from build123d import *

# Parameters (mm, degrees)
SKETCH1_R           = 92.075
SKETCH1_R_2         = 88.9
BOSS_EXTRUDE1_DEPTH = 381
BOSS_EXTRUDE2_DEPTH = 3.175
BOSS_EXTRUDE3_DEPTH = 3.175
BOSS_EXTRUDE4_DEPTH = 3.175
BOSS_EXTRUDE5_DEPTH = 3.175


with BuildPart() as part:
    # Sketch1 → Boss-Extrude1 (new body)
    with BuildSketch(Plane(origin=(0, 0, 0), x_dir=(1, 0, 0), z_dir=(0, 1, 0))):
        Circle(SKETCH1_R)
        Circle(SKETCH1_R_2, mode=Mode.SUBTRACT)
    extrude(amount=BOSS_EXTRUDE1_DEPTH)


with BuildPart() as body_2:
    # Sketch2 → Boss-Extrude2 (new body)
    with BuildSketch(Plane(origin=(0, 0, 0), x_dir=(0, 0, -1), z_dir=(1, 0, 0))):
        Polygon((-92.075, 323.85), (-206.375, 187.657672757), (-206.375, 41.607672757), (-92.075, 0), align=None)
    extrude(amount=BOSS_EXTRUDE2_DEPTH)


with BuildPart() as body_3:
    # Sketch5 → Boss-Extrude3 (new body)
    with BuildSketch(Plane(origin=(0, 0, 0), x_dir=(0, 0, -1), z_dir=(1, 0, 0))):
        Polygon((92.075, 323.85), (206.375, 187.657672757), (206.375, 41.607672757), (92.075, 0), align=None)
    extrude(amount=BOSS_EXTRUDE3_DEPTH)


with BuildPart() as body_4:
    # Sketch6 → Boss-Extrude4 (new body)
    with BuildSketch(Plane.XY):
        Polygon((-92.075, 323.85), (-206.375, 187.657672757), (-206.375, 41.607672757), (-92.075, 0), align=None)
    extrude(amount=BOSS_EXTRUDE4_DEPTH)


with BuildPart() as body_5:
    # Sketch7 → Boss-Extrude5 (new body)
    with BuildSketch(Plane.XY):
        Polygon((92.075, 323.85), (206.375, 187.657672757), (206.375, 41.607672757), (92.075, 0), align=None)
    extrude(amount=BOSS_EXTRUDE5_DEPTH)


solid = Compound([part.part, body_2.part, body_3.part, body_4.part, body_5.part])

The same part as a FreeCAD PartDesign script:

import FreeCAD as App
import Part
import Sketcher
from FreeCAD import Vector
Q = App.Units.Quantity

doc = App.newDocument("Part")
params = doc.addObject("Spreadsheet::Sheet", "Params")
for row, (alias, value) in enumerate([
    ("sketch1_diameter", "7 in"),
    ("sketch1_diameter2", "7.25 in"),
    ("pad1_length", "15 in"),
    ("sketch2_length", "7 in"),
    ("sketch2_width", "5.75 in"),
    ("sketch2_width2", "12.75 in"),
    ("pad2_length", "0.125 in"),
    ("sketch3_length", "7 in"),
    ("sketch3_width", "12.75 in"),
    ("sketch3_width2", "5.75 in"),
    ("pad3_length", "0.125 in"),
    ("sketch4_length", "7 in"),
    ("sketch4_height", "5.75 in"),
    ("sketch4_height2", "12.75 in"),
    ("pad4_length", "0.125 in"),
    ("sketch5_length", "7 in"),
    ("sketch5_height", "12.75 in"),
    ("sketch5_height2", "5.75 in"),
    ("pad5_length", "0.125 in"),
], start=1):
    params.set(f"A{row}", alias)
    params.set(f"B{row}", "=" + value)
    params.setAlias(f"B{row}", alias)

body = doc.addObject("PartDesign::Body", "Body")

# Sketch on XZ plane
sketch1 = body.newObject("Sketcher::SketchObject", "Sketch")
sketch1.AttachmentSupport = (doc.getObject("XZ_Plane"), [""])
sketch1.MapMode = "FlatFace"
sketch1.addGeometry([
    Part.Circle(Vector(0, 0, 0), Vector(0, 0, 1), 92),
    Part.Circle(Vector(0, 0, 0), Vector(0, 0, 1), 89),
], False)
sketch1.addConstraint([
    Sketcher.Constraint("Coincident", 0, 3, -1, 1),
    Sketcher.Constraint("Coincident", 1, 3, -1, 1),
    Sketcher.Constraint("Diameter", 1, Q("7 in")),
    Sketcher.Constraint("Diameter", 0, Q("7.25 in")),
])
sketch1.setExpression("Constraints[2]", "Params.sketch1_diameter")
sketch1.setExpression("Constraints[3]", "Params.sketch1_diameter2")
pad1 = body.newObject("PartDesign::Pad", "Pad")
pad1.Profile = sketch1
pad1.setExpression("Length", "Params.pad1_length")
pad1.Reversed = True
body2 = doc.addObject("PartDesign::Body", "Body001")

# Sketch on YZ plane
sketch2 = body2.newObject("Sketcher::SketchObject", "Sketch001")
sketch2.AttachmentSupport = (doc.getObject("YZ_Plane001"), [""])
sketch2.MapMode = "FlatFace"
sketch2.addGeometry([
    Part.LineSegment(Vector(324, 92, 0), Vector(188, 206, 0)),
    Part.LineSegment(Vector(188, 206, 0), Vector(42, 206, 0)),
    Part.LineSegment(Vector(42, 206, 0), Vector(0, 92, 0)),
    Part.LineSegment(Vector(0, 92, 0), Vector(324, 92, 0)),
], False)
sketch2.addConstraint([
    Sketcher.Constraint("Coincident", 0, 2, 1, 1),
    Sketcher.Constraint("Coincident", 1, 2, 2, 1),
    Sketcher.Constraint("Coincident", 2, 2, 3, 1),
    Sketcher.Constraint("Coincident", 3, 2, 0, 1),
    Sketcher.Constraint("Horizontal", 1),
    Sketcher.Constraint("Horizontal", 3),
    Sketcher.Constraint("PointOnObject", 2, 2, -2),
    Sketcher.Constraint("Distance", 0, Q("7 in")),
    Sketcher.Constraint("DistanceX", 1, 2, 1, 1, Q("5.75 in")),
    Sketcher.Constraint("DistanceX", 3, 1, 3, 2, Q("12.75 in")),
    Sketcher.Constraint("DistanceY", 2, 2, 1, 2, Q("4.5 in")),
    Sketcher.Constraint("DistanceY", -1, 1, 0, 2, Q("8.125 in")),
])
sketch2.setExpression("Constraints[7]", "Params.sketch2_length")
sketch2.setExpression("Constraints[8]", "Params.sketch2_width")
sketch2.setExpression("Constraints[9]", "Params.sketch2_width2")
pad2 = body2.newObject("PartDesign::Pad", "Pad001")
pad2.Profile = sketch2
pad2.setExpression("Length", "Params.pad2_length")
body3 = doc.addObject("PartDesign::Body", "Body002")

# Sketch on YZ plane
sketch3 = body3.newObject("Sketcher::SketchObject", "Sketch002")
sketch3.AttachmentSupport = (doc.getObject("YZ_Plane002"), [""])
sketch3.MapMode = "FlatFace"
sketch3.addGeometry([
    Part.LineSegment(Vector(188, -206, 0), Vector(324, -92, 0)),
    Part.LineSegment(Vector(324, -92, 0), Vector(0, -92, 0)),
    Part.LineSegment(Vector(0, -92, 0), Vector(42, -206, 0)),
    Part.LineSegment(Vector(42, -206, 0), Vector(188, -206, 0)),
], False)
sketch3.addConstraint([
    Sketcher.Constraint("Coincident", 0, 2, 1, 1),
    Sketcher.Constraint("Coincident", 1, 2, 2, 1),
    Sketcher.Constraint("Coincident", 2, 2, 3, 1),
    Sketcher.Constraint("Coincident", 3, 2, 0, 1),
    Sketcher.Constraint("Horizontal", 1),
    Sketcher.Constraint("Horizontal", 3),
    Sketcher.Constraint("PointOnObject", 1, 2, -2),
    Sketcher.Constraint("Distance", 0, Q("7 in")),
    Sketcher.Constraint("DistanceX", 1, 2, 1, 1, Q("12.75 in")),
    Sketcher.Constraint("DistanceX", 3, 1, 3, 2, Q("5.75 in")),
    Sketcher.Constraint("DistanceY", 2, 2, 1, 2, Q("4.5 in")),
    Sketcher.Constraint("DistanceY", 0, 2, -1, 1, Q("3.625 in")),
])
sketch3.setExpression("Constraints[7]", "Params.sketch3_length")
sketch3.setExpression("Constraints[8]", "Params.sketch3_width")
sketch3.setExpression("Constraints[9]", "Params.sketch3_width2")
pad3 = body3.newObject("PartDesign::Pad", "Pad002")
pad3.Profile = sketch3
pad3.setExpression("Length", "Params.pad3_length")
body4 = doc.addObject("PartDesign::Body", "Body003")

# Sketch on XY plane
sketch4 = body4.newObject("Sketcher::SketchObject", "Sketch003")
sketch4.AttachmentSupport = (doc.getObject("XY_Plane003"), [""])
sketch4.MapMode = "FlatFace"
sketch4.addGeometry([
    Part.LineSegment(Vector(-92, 324, 0), Vector(-206, 188, 0)),
    Part.LineSegment(Vector(-206, 188, 0), Vector(-206, 42, 0)),
    Part.LineSegment(Vector(-206, 42, 0), Vector(-92, 0, 0)),
    Part.LineSegment(Vector(-92, 0, 0), Vector(-92, 324, 0)),
], False)
sketch4.addConstraint([
    Sketcher.Constraint("Coincident", 0, 2, 1, 1),
    Sketcher.Constraint("Coincident", 1, 2, 2, 1),
    Sketcher.Constraint("Coincident", 2, 2, 3, 1),
    Sketcher.Constraint("Coincident", 3, 2, 0, 1),
    Sketcher.Constraint("Vertical", 1),
    Sketcher.Constraint("Vertical", 3),
    Sketcher.Constraint("PointOnObject", 2, 2, -1),
    Sketcher.Constraint("Distance", 0, Q("7 in")),
    Sketcher.Constraint("DistanceY", 1, 2, 1, 1, Q("5.75 in")),
    Sketcher.Constraint("DistanceY", 3, 1, 3, 2, Q("12.75 in")),
    Sketcher.Constraint("DistanceX", 1, 2, 2, 2, Q("4.5 in")),
    Sketcher.Constraint("DistanceX", 0, 2, -1, 1, Q("8.125 in")),
])
sketch4.setExpression("Constraints[7]", "Params.sketch4_length")
sketch4.setExpression("Constraints[8]", "Params.sketch4_height")
sketch4.setExpression("Constraints[9]", "Params.sketch4_height2")
pad4 = body4.newObject("PartDesign::Pad", "Pad003")
pad4.Profile = sketch4
pad4.setExpression("Length", "Params.pad4_length")
body5 = doc.addObject("PartDesign::Body", "Body004")

# Sketch on XY plane
sketch5 = body5.newObject("Sketcher::SketchObject", "Sketch004")
sketch5.AttachmentSupport = (doc.getObject("XY_Plane004"), [""])
sketch5.MapMode = "FlatFace"
sketch5.addGeometry([
    Part.LineSegment(Vector(206, 188, 0), Vector(92, 324, 0)),
    Part.LineSegment(Vector(92, 324, 0), Vector(92, 0, 0)),
    Part.LineSegment(Vector(92, 0, 0), Vector(206, 42, 0)),
    Part.LineSegment(Vector(206, 42, 0), Vector(206, 188, 0)),
], False)
sketch5.addConstraint([
    Sketcher.Constraint("Coincident", 0, 2, 1, 1),
    Sketcher.Constraint("Coincident", 1, 2, 2, 1),
    Sketcher.Constraint("Coincident", 2, 2, 3, 1),
    Sketcher.Constraint("Coincident", 3, 2, 0, 1),
    Sketcher.Constraint("Vertical", 1),
    Sketcher.Constraint("Vertical", 3),
    Sketcher.Constraint("PointOnObject", 1, 2, -1),
    Sketcher.Constraint("Distance", 0, Q("7 in")),
    Sketcher.Constraint("DistanceY", 1, 2, 1, 1, Q("12.75 in")),
    Sketcher.Constraint("DistanceY", 3, 1, 3, 2, Q("5.75 in")),
    Sketcher.Constraint("DistanceX", 1, 2, 2, 2, Q("4.5 in")),
    Sketcher.Constraint("DistanceX", -1, 1, 0, 2, Q("3.625 in")),
])
sketch5.setExpression("Constraints[7]", "Params.sketch5_length")
sketch5.setExpression("Constraints[8]", "Params.sketch5_height")
sketch5.setExpression("Constraints[9]", "Params.sketch5_height2")
pad5 = body5.newObject("PartDesign::Pad", "Pad004")
pad5.Profile = sketch5
pad5.setExpression("Length", "Params.pad5_length")

doc.recompute()
